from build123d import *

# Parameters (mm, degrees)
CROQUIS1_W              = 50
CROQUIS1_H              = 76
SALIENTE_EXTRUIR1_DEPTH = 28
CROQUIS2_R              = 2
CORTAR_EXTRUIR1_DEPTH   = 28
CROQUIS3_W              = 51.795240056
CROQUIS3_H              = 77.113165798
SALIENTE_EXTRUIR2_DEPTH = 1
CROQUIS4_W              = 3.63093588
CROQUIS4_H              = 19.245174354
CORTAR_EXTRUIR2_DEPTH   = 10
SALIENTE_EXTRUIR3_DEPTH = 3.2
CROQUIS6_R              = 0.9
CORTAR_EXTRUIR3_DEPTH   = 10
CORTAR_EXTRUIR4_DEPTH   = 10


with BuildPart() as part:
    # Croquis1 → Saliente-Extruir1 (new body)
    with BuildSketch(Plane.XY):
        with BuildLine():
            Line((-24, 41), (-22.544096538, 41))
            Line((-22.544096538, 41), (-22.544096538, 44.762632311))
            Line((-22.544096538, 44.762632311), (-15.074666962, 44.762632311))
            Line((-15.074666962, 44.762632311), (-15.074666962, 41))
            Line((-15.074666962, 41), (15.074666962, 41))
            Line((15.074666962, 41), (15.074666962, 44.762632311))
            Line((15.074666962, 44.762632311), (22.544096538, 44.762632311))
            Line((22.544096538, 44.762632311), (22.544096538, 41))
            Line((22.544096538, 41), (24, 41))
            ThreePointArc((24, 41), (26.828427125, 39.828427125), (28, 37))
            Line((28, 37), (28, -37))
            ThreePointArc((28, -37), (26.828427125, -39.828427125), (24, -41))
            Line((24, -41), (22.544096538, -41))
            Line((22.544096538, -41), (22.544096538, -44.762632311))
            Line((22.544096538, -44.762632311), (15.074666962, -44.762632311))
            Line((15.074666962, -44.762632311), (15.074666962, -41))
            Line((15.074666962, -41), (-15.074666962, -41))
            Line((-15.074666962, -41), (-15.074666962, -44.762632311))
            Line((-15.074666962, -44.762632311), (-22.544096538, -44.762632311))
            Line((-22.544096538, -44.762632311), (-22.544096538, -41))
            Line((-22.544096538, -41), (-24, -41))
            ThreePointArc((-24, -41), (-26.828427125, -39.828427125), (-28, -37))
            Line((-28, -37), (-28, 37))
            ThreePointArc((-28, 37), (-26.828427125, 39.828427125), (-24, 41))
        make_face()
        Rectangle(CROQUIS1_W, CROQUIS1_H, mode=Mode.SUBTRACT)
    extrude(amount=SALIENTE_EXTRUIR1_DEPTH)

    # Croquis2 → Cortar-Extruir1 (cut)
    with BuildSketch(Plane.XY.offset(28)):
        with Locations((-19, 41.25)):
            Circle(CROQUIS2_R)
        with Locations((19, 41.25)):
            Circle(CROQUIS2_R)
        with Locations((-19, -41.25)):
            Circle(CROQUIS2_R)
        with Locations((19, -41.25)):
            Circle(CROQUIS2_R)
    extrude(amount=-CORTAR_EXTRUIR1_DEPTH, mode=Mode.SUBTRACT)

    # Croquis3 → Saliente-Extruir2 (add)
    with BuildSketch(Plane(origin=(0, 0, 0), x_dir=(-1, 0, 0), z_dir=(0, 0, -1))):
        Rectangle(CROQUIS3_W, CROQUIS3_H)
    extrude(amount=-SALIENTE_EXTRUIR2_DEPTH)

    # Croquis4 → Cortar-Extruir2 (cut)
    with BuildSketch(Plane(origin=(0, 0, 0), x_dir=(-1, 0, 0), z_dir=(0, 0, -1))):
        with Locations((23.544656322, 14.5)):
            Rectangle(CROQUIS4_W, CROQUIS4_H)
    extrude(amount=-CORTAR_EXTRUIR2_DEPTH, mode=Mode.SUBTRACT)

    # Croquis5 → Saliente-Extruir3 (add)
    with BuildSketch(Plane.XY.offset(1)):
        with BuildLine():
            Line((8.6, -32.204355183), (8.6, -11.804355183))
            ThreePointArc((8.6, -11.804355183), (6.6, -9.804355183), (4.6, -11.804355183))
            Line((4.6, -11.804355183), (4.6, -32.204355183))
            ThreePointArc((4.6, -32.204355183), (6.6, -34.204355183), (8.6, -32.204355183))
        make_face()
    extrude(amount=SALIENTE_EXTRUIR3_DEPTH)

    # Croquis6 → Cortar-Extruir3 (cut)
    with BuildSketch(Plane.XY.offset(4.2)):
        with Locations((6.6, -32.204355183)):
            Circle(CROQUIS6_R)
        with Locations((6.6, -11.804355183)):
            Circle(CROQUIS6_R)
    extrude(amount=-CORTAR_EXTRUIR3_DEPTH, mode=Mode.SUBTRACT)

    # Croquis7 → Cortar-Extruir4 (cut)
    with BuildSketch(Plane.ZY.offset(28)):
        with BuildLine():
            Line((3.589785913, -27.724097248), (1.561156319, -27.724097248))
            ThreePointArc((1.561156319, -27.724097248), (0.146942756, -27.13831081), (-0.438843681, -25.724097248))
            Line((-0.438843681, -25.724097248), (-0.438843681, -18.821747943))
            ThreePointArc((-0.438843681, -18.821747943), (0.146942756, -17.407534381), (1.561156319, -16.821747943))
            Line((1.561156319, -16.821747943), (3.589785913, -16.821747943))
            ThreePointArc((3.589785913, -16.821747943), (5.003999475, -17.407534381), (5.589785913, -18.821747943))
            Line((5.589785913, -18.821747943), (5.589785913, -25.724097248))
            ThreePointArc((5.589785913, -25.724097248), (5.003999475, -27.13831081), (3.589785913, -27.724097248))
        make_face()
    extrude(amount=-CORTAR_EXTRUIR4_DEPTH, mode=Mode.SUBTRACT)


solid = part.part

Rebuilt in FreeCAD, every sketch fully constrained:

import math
import FreeCAD as App
import Part
import Sketcher

V = App.Vector

doc = App.newDocument("Part")
params = doc.addObject("Spreadsheet::Sheet", "Params")
for row, (alias, value) in enumerate([
    ("sketch1_radius", "4 mm"),
    ("sketch1_width", "50 mm"),
    ("sketch1_height", "74 mm"),
    ("sketch1_height2", "76 mm"),
    ("pad1_length", "28 mm"),
    ("sketch2_diameter", "4 mm"),
    ("pocket1_length", "28 mm"),
    ("pad2_length", "1 mm"),
    ("pocket2_length", "10 mm"),
    ("sketch5_radius", "2 mm"),
    ("sketch5_height", "20.4 mm"),
    ("pad3_length", "3.2 mm"),
    ("sketch6_diameter", "1.8 mm"),
    ("pocket3_length", "10 mm"),
    ("sketch7_radius", "2 mm"),
    ("pocket4_length", "10 mm"),
], start=1):
    params.set(f"A{row}", alias)
    params.set(f"B{row}", "=" + value)
    params.setAlias(f"B{row}", alias)

body = doc.addObject("PartDesign::Body", "Body")

# Sketch on XY plane
sketch1 = body.newObject("Sketcher::SketchObject", "Sketch")
sketch1.AttachmentSupport = (doc.getObject("XY_Plane"), [""])
sketch1.MapMode = "FlatFace"
sketch1.addGeometry([
    Part.LineSegment(V(-22.5, 41, 0), V(-24, 41, 0)),  # 0
    Part.ArcOfCircle(Part.Circle(V(-24, 37, 0), V(0, 0, 1), 4), math.radians(90), math.radians(180)),  # 1
    Part.LineSegment(V(-28, 37, 0), V(-28, -37, 0)),  # 2
    Part.ArcOfCircle(Part.Circle(V(-24, -37, 0), V(0, 0, 1), 4), math.radians(180), math.radians(270)),  # 3
    Part.LineSegment(V(-24, -41, 0), V(-22.5, -41, 0)),  # 4
    Part.LineSegment(V(-22.5, -41, 0), V(-22.5, -44.8, 0)),  # 5
    Part.LineSegment(V(-22.5, -44.8, 0), V(-15.1, -44.8, 0)),  # 6
    Part.LineSegment(V(-15.1, -44.8, 0), V(-15.1, -41, 0)),  # 7
    Part.LineSegment(V(-15.1, -41, 0), V(15.1, -41, 0)),  # 8
    Part.LineSegment(V(15.1, -41, 0), V(15.1, -44.8, 0)),  # 9
    Part.LineSegment(V(15.1, -44.8, 0), V(22.5, -44.8, 0)),  # 10
    Part.LineSegment(V(22.5, -44.8, 0), V(22.5, -41, 0)),  # 11
    Part.LineSegment(V(22.5, -41, 0), V(24, -41, 0)),  # 12
    Part.ArcOfCircle(Part.Circle(V(24, -37, 0), V(0, 0, 1), 4), math.radians(-90), math.radians(0)),  # 13
    Part.LineSegment(V(28, -37, 0), V(28, 37, 0)),  # 14
    Part.ArcOfCircle(Part.Circle(V(24, 37, 0), V(0, 0, 1), 4), math.radians(0), math.radians(90)),  # 15
    Part.LineSegment(V(24, 41, 0), V(22.5, 41, 0)),  # 16
    Part.LineSegment(V(22.5, 41, 0), V(22.5, 44.8, 0)),  # 17
    Part.LineSegment(V(22.5, 44.8, 0), V(15.1, 44.8, 0)),  # 18
    Part.LineSegment(V(15.1, 44.8, 0), V(15.1, 41, 0)),  # 19
    Part.LineSegment(V(15.1, 41, 0), V(-15.1, 41, 0)),  # 20
    Part.LineSegment(V(-15.1, 41, 0), V(-15.1, 44.8, 0)),  # 21
    Part.LineSegment(V(-15.1, 44.8, 0), V(-22.5, 44.8, 0)),  # 22
    Part.LineSegment(V(-22.5, 44.8, 0), V(-22.5, 41, 0)),  # 23
    Part.LineSegment(V(-25, -38, 0), V(-25, 38, 0)),  # 24
    Part.LineSegment(V(-25, 38, 0), V(25, 38, 0)),  # 25
    Part.LineSegment(V(25, 38, 0), V(25, -38, 0)),  # 26
    Part.LineSegment(V(25, -38, 0), V(-25, -38, 0)),  # 27
], False)
sketch1.addConstraint([
    Sketcher.Constraint("Tangent", 0, 2, 1, 1),
    Sketcher.Constraint("Tangent", 1, 2, 2, 1),
    Sketcher.Constraint("Tangent", 2, 2, 3, 1),
    Sketcher.Constraint("Tangent", 3, 2, 4, 1),
    Sketcher.Constraint("Coincident", 4, 2, 5, 1),
    Sketcher.Constraint("Coincident", 5, 2, 6, 1),
    Sketcher.Constraint("Coincident", 6, 2, 7, 1),
    Sketcher.Constraint("Coincident", 7, 2, 8, 1),
    Sketcher.Constraint("Coincident", 8, 2, 9, 1),
    Sketcher.Constraint("Coincident", 9, 2, 10, 1),
    Sketcher.Constraint("Coincident", 10, 2, 11, 1),
    Sketcher.Constraint("Coincident", 11, 2, 12, 1),
    Sketcher.Constraint("Tangent", 12, 2, 13, 1),
    Sketcher.Constraint("Tangent", 13, 2, 14, 1),
    Sketcher.Constraint("Tangent", 14, 2, 15, 1),
    Sketcher.Constraint("Tangent", 15, 2, 16, 1),
    Sketcher.Constraint("Coincident", 16, 2, 17, 1),
    Sketcher.Constraint("Coincident", 17, 2, 18, 1),
    Sketcher.Constraint("Coincident", 18, 2, 19, 1),
    Sketcher.Constraint("Coincident", 19, 2, 20, 1),
    Sketcher.Constraint("Coincident", 20, 2, 21, 1),
    Sketcher.Constraint("Coincident", 21, 2, 22, 1),
    Sketcher.Constraint("Coincident", 22, 2, 23, 1),
    Sketcher.Constraint("Coincident", 23, 2, 0, 1),
    Sketcher.Constraint("Coincident", 24, 2, 25, 1),
    Sketcher.Constraint("Coincident", 25, 2, 26, 1),
    Sketcher.Constraint("Coincident", 26, 2, 27, 1),
    Sketcher.Constraint("Coincident", 27, 2, 24, 1),
    Sketcher.Constraint("Horizontal", 0),
    Sketcher.Constraint("Vertical", 2),
    Sketcher.Constraint("Horizontal", 4),
    Sketcher.Constraint("Vertical", 5),
    Sketcher.Constraint("Horizontal", 6),
    Sketcher.Constraint("Vertical", 7),
    Sketcher.Constraint("Horizontal", 8),
    Sketcher.Constraint("Vertical", 9),
    Sketcher.Constraint("Horizontal", 10),
    Sketcher.Constraint("Vertical", 11),
    Sketcher.Constraint("Horizontal", 12),
    Sketcher.Constraint("Vertical", 14),
    Sketcher.Constraint("Horizontal", 16),
    Sketcher.Constraint("Vertical", 17),
    Sketcher.Constraint("Horizontal", 18),
    Sketcher.Constraint("Vertical", 19),
    Sketcher.Constraint("Horizontal", 20),
    Sketcher.Constraint("Vertical", 21),
    Sketcher.Constraint("Horizontal", 22),
    Sketcher.Constraint("Vertical", 23),
    Sketcher.Constraint("Vertical", 24),
    Sketcher.Constraint("Horizontal", 25),
    Sketcher.Constraint("Vertical", 26),
    Sketcher.Constraint("Horizontal", 27),
    Sketcher.Constraint("Equal", 1, 3),
    Sketcher.Constraint("Equal", 3, 13),
    Sketcher.Constraint("Equal", 13, 15),
    Sketcher.Constraint("Symmetric", 1, 3, 13, 3, -1, 1),
    Sketcher.Constraint("Symmetric", 4, 2, 16, 2, -1, 1),
    Sketcher.Constraint("Symmetric", 6, 2, 18, 2, -1, 1),
    Sketcher.Constraint("Symmetric", 8, 2, 20, 2, -1, 1),
    Sketcher.Constraint("Symmetric", 10, 2, 22, 2, -1, 1),
    Sketcher.Constraint("Symmetric", 24, 2, 26, 2, -1, 1),
    Sketcher.Constraint("Symmetric", 6, 2, 9, 2, -2),
    Sketcher.Constraint("Symmetric", 4, 2, 11, 2, -2),
    Sketcher.Constraint("Horizontal", 4, 2, 7, 2),
    Sketcher.Constraint("Radius", 1, 4.0),
    Sketcher.Constraint("DistanceX", 25, 1, 25, 2, 50.0),
    Sketcher.Constraint("DistanceY", 2, 2, 2, 1, 74.0),
    Sketcher.Constraint("DistanceY", 24, 1, 24, 2, 76.0),
    Sketcher.Constraint("DistanceX", 1, 3, -1, 1, 24.0),
    Sketcher.Constraint("DistanceX", 6, 1, 6, 2, 7.46943),
    Sketcher.Constraint("DistanceX", 0, 2, 0, 1, 1.455903),
    Sketcher.Constraint("DistanceY", 5, 2, 5, 1, 3.762632),
])
sketch1.setExpression("Constraints[64]", "Params.sketch1_radius")
sketch1.setExpression("Constraints[65]", "Params.sketch1_width")
sketch1.setExpression("Constraints[66]", "Params.sketch1_height")
sketch1.setExpression("Constraints[67]", "Params.sketch1_height2")
pad1 = body.newObject("PartDesign::Pad", "Pad")
pad1.Profile = sketch1
pad1.setExpression("Length", "Params.pad1_length")

# Sketch on XY plane
sketch2 = body.newObject("Sketcher::SketchObject", "Sketch001")
sketch2.AttachmentSupport = (doc.getObject("XY_Plane"), [""])
sketch2.MapMode = "FlatFace"
sketch2.AttachmentOffset = App.Placement(V(0, 0, 28), App.Rotation())
sketch2.addGeometry([
    Part.Circle(V(-19, 41.2, 0), V(0, 0, 1), 2),
    Part.Circle(V(19, 41.2, 0), V(0, 0, 1), 2),
    Part.Circle(V(-19, -41.2, 0), V(0, 0, 1), 2),
    Part.Circle(V(19, -41.2, 0), V(0, 0, 1), 2),
], False)
sketch2.addConstraint([
    Sketcher.Constraint("Equal", 0, 1),
    Sketcher.Constraint("Equal", 1, 2),
    Sketcher.Constraint("Equal", 2, 3),
    Sketcher.Constraint("Symmetric", 1, 3, 2, 3, -1, 1),
    Sketcher.Constraint("Symmetric", 0, 3, 3, 3, -1, 1),
    Sketcher.Constraint("Symmetric", 0, 3, 1, 3, -2),
    Sketcher.Constraint("Diameter", 0, 4.0),
    Sketcher.Constraint("DistanceX", 0, 3, -1, 1, 19.0),
    Sketcher.Constraint("DistanceY", 2, 3, 0, 3, 82.5),
])
sketch2.setExpression("Constraints[6]", "Params.sketch2_diameter")
pocket1 = body.newObject("PartDesign::Pocket", "Pocket")
pocket1.Profile = sketch2
pocket1.setExpression("Length", "Params.pocket1_length")

# Sketch on XY plane
sketch3 = body.newObject("Sketcher::SketchObject", "Sketch002")
sketch3.AttachmentSupport = (doc.getObject("XY_Plane"), [""])
sketch3.MapMode = "FlatFace"
sketch3.addGeometry([
    Part.LineSegment(V(26, 39, 0), V(26, -39, 0)),
    Part.LineSegment(V(26, -39, 0), V(-26, -39, 0)),
    Part.LineSegment(V(-26, -39, 0), V(-26, 39, 0)),
    Part.LineSegment(V(-26, 39, 0), V(26, 39, 0)),
], False)
sketch3.addConstraint([
    Sketcher.Constraint("Coincident", 0, 2, 1, 1),
    Sketcher.Constraint("Coincident", 1, 2, 2, 1),
    Sketcher.Constraint("Coincident", 2, 2, 3, 1),
    Sketcher.Constraint("Coincident", 3, 2, 0, 1),
    Sketcher.Constraint("Vertical", 0),
    Sketcher.Constraint("Horizontal", 1),
    Sketcher.Constraint("Vertical", 2),
    Sketcher.Constraint("Horizontal", 3),
    Sketcher.Constraint("Symmetric", 0, 2, 2, 2, -1, 1),
    Sketcher.Constraint("DistanceX", 1, 2, 1, 1, 51.79524),
    Sketcher.Constraint("DistanceY", 0, 2, 0, 1, 77.113166),
])
pad2 = body.newObject("PartDesign::Pad", "Pad001")
pad2.Profile = sketch3
pad2.setExpression("Length", "Params.pad2_length")

# Sketch on XY plane
sketch4 = body.newObject("Sketcher::SketchObject", "Sketch003")
sketch4.AttachmentSupport = (doc.getObject("XY_Plane"), [""])
sketch4.MapMode = "FlatFace"
sketch4.addGeometry([
    Part.LineSegment(V(-21.7, 24.1, 0), V(-21.7, 4.9, 0)),
    Part.LineSegment(V(-21.7, 4.9, 0), V(-25.4, 4.9, 0)),
    Part.LineSegment(V(-25.4, 4.9, 0), V(-25.4, 24.1, 0)),
    Part.LineSegment(V(-25.4, 24.1, 0), V(-21.7, 24.1, 0)),
], False)
sketch4.addConstraint([
    Sketcher.Constraint("Coincident", 0, 2, 1, 1),
    Sketcher.Constraint("Coincident", 1, 2, 2, 1),
    Sketcher.Constraint("Coincident", 2, 2, 3, 1),
    Sketcher.Constraint("Coincident", 3, 2, 0, 1),
    Sketcher.Constraint("Vertical", 0),
    Sketcher.Constraint("Horizontal", 1),
    Sketcher.Constraint("Vertical", 2),
    Sketcher.Constraint("Horizontal", 3),
    Sketcher.Constraint("DistanceX", 1, 2, 1, 1, 3.630936),
    Sketcher.Constraint("DistanceY", 0, 2, 0, 1, 19.245174),
    Sketcher.Constraint("DistanceX", 0, 2, -1, 1, 21.729188),
    Sketcher.Constraint("DistanceY", -1, 1, 0, 2, 4.877413),
])
pocket2 = body.newObject("PartDesign::Pocket", "Pocket001")
pocket2.Profile = sketch4
pocket2.setExpression("Length", "Params.pocket2_length")
pocket2.Reversed = True

# Sketch on XY plane
sketch5 = body.newObject("Sketcher::SketchObject", "Sketch004")
sketch5.AttachmentSupport = (doc.getObject("XY_Plane"), [""])
sketch5.MapMode = "FlatFace"
sketch5.AttachmentOffset = App.Placement(V(0, 0, 1), App.Rotation())
sketch5.addGeometry([
    Part.LineSegment(V(8.6, -32.2, 0), V(8.6, -11.8, 0)),
    Part.ArcOfCircle(Part.Circle(V(6.6, -11.8, 0), V(0, 0, 1), 2), math.radians(0), math.radians(180)),
    Part.LineSegment(V(4.6, -11.8, 0), V(4.6, -32.2, 0)),
    Part.ArcOfCircle(Part.Circle(V(6.6, -32.2, 0), V(0, 0, 1), 2), math.radians(180), math.radians(360)),
], False)
sketch5.addConstraint([
    Sketcher.Constraint("Tangent", 0, 2, 1, 1),
    Sketcher.Constraint("Tangent", 1, 2, 2, 1),
    Sketcher.Constraint("Tangent", 2, 2, 3, 1),
    Sketcher.Constraint("Tangent", 3, 2, 0, 1),
    Sketcher.Constraint("Vertical", 0),
    Sketcher.Constraint("Vertical", 2),
    Sketcher.Constraint("Radius", 1, 2.0),
    Sketcher.Constraint("DistanceY", 0, 1, 0, 2, 20.4),
    Sketcher.Constraint("DistanceX", -1, 1, 1, 3, 6.6),
    Sketcher.Constraint("DistanceY", 1, 3, -1, 1, 11.804355),
])
sketch5.setExpression("Constraints[6]", "Params.sketch5_radius")
sketch5.setExpression("Constraints[7]", "Params.sketch5_height")
pad3 = body.newObject("PartDesign::Pad", "Pad002")
pad3.Profile = sketch5
pad3.setExpression("Length", "Params.pad3_length")

# Sketch on XY plane
sketch6 = body.newObject("Sketcher::SketchObject", "Sketch005")
sketch6.AttachmentSupport = (doc.getObject("XY_Plane"), [""])
sketch6.MapMode = "FlatFace"
sketch6.AttachmentOffset = App.Placement(V(0, 0, 4.2), App.Rotation())
sketch6.addGeometry([
    Part.Circle(V(6.6, -32.2, 0), V(0, 0, 1), 0.9),
    Part.Circle(V(6.6, -11.8, 0), V(0, 0, 1), 0.9),
], False)
sketch6.addConstraint([
    Sketcher.Constraint("Equal", 0, 1),
    Sketcher.Constraint("Vertical", 0, 3, 1, 3),
    Sketcher.Constraint("Diameter", 0, 1.8),
    Sketcher.Constraint("DistanceX", -1, 1, 0, 3, 6.6),
    Sketcher.Constraint("DistanceY", 0, 3, 1, 3, 20.4),
    Sketcher.Constraint("DistanceY", 0, 3, -1, 1, 32.204355),
])
sketch6.setExpression("Constraints[2]", "Params.sketch6_diameter")
pocket3 = body.newObject("PartDesign::Pocket", "Pocket002")
pocket3.Profile = sketch6
pocket3.setExpression("Length", "Params.pocket3_length")

# Sketch on YZ plane
sketch7 = body.newObject("Sketcher::SketchObject", "Sketch006")
sketch7.AttachmentSupport = (doc.getObject("YZ_Plane"), [""])
sketch7.MapMode = "FlatFace"
sketch7.AttachmentOffset = App.Placement(V(0, 0, -28), App.Rotation())
sketch7.addGeometry([
    Part.LineSegment(V(-27.7, 1.6, 0), V(-27.7, 3.6, 0)),  # 0
    Part.ArcOfCircle(Part.Circle(V(-25.7, 3.6, 0), V(0, 0, 1), 2), math.radians(90), math.radians(180)),  # 1
    Part.LineSegment(V(-25.7, 5.6, 0), V(-18.8, 5.6, 0)),  # 2
    Part.ArcOfCircle(Part.Circle(V(-18.8, 3.6, 0), V(0, 0, 1), 2), math.radians(0), math.radians(90)),  # 3
    Part.LineSegment(V(-16.8, 3.6, 0), V(-16.8, 1.6, 0)),  # 4
    Part.ArcOfCircle(Part.Circle(V(-18.8, 1.6, 0), V(0, 0, 1), 2), math.radians(-90), math.radians(0)),  # 5
    Part.LineSegment(V(-18.8, -0.4, 0), V(-25.7, -0.4, 0)),  # 6
    Part.ArcOfCircle(Part.Circle(V(-25.7, 1.6, 0), V(0, 0, 1), 2), math.radians(180), math.radians(270)),  # 7
], False)
sketch7.addConstraint([
    Sketcher.Constraint("Tangent", 0, 2, 1, 2),
    Sketcher.Constraint("Tangent", 1, 1, 2, 1),
    Sketcher.Constraint("Tangent", 2, 2, 3, 2),
    Sketcher.Constraint("Tangent", 3, 1, 4, 1),
    Sketcher.Constraint("Tangent", 4, 2, 5, 2),
    Sketcher.Constraint("Tangent", 5, 1, 6, 1),
    Sketcher.Constraint("Tangent", 6, 2, 7, 2),
    Sketcher.Constraint("Tangent", 7, 1, 0, 1),
    Sketcher.Constraint("Vertical", 0),
    Sketcher.Constraint("Horizontal", 2),
    Sketcher.Constraint("Vertical", 4),
    Sketcher.Constraint("Horizontal", 6),
    Sketcher.Constraint("Equal", 1, 3),
    Sketcher.Constraint("Equal", 3, 5),
    Sketcher.Constraint("Equal", 5, 7),
    Sketcher.Constraint("Radius", 1, 2.0),
    Sketcher.Constraint("DistanceX", 2, 1, 2, 2, 6.902349),
    Sketcher.Constraint("DistanceY", 0, 1, 0, 2, 2.02863),
    Sketcher.Constraint("DistanceX", 1, 3, -1, 1, 25.724097),
    Sketcher.Constraint("DistanceY", -1, 1, 1, 3, 3.589786),
])
sketch7.setExpression("Constraints[15]", "Params.sketch7_radius")
pocket4 = body.newObject("PartDesign::Pocket", "Pocket003")
pocket4.Profile = sketch7
pocket4.setExpression("Length", "Params.pocket4_length")
pocket4.Reversed = True

doc.recompute()
